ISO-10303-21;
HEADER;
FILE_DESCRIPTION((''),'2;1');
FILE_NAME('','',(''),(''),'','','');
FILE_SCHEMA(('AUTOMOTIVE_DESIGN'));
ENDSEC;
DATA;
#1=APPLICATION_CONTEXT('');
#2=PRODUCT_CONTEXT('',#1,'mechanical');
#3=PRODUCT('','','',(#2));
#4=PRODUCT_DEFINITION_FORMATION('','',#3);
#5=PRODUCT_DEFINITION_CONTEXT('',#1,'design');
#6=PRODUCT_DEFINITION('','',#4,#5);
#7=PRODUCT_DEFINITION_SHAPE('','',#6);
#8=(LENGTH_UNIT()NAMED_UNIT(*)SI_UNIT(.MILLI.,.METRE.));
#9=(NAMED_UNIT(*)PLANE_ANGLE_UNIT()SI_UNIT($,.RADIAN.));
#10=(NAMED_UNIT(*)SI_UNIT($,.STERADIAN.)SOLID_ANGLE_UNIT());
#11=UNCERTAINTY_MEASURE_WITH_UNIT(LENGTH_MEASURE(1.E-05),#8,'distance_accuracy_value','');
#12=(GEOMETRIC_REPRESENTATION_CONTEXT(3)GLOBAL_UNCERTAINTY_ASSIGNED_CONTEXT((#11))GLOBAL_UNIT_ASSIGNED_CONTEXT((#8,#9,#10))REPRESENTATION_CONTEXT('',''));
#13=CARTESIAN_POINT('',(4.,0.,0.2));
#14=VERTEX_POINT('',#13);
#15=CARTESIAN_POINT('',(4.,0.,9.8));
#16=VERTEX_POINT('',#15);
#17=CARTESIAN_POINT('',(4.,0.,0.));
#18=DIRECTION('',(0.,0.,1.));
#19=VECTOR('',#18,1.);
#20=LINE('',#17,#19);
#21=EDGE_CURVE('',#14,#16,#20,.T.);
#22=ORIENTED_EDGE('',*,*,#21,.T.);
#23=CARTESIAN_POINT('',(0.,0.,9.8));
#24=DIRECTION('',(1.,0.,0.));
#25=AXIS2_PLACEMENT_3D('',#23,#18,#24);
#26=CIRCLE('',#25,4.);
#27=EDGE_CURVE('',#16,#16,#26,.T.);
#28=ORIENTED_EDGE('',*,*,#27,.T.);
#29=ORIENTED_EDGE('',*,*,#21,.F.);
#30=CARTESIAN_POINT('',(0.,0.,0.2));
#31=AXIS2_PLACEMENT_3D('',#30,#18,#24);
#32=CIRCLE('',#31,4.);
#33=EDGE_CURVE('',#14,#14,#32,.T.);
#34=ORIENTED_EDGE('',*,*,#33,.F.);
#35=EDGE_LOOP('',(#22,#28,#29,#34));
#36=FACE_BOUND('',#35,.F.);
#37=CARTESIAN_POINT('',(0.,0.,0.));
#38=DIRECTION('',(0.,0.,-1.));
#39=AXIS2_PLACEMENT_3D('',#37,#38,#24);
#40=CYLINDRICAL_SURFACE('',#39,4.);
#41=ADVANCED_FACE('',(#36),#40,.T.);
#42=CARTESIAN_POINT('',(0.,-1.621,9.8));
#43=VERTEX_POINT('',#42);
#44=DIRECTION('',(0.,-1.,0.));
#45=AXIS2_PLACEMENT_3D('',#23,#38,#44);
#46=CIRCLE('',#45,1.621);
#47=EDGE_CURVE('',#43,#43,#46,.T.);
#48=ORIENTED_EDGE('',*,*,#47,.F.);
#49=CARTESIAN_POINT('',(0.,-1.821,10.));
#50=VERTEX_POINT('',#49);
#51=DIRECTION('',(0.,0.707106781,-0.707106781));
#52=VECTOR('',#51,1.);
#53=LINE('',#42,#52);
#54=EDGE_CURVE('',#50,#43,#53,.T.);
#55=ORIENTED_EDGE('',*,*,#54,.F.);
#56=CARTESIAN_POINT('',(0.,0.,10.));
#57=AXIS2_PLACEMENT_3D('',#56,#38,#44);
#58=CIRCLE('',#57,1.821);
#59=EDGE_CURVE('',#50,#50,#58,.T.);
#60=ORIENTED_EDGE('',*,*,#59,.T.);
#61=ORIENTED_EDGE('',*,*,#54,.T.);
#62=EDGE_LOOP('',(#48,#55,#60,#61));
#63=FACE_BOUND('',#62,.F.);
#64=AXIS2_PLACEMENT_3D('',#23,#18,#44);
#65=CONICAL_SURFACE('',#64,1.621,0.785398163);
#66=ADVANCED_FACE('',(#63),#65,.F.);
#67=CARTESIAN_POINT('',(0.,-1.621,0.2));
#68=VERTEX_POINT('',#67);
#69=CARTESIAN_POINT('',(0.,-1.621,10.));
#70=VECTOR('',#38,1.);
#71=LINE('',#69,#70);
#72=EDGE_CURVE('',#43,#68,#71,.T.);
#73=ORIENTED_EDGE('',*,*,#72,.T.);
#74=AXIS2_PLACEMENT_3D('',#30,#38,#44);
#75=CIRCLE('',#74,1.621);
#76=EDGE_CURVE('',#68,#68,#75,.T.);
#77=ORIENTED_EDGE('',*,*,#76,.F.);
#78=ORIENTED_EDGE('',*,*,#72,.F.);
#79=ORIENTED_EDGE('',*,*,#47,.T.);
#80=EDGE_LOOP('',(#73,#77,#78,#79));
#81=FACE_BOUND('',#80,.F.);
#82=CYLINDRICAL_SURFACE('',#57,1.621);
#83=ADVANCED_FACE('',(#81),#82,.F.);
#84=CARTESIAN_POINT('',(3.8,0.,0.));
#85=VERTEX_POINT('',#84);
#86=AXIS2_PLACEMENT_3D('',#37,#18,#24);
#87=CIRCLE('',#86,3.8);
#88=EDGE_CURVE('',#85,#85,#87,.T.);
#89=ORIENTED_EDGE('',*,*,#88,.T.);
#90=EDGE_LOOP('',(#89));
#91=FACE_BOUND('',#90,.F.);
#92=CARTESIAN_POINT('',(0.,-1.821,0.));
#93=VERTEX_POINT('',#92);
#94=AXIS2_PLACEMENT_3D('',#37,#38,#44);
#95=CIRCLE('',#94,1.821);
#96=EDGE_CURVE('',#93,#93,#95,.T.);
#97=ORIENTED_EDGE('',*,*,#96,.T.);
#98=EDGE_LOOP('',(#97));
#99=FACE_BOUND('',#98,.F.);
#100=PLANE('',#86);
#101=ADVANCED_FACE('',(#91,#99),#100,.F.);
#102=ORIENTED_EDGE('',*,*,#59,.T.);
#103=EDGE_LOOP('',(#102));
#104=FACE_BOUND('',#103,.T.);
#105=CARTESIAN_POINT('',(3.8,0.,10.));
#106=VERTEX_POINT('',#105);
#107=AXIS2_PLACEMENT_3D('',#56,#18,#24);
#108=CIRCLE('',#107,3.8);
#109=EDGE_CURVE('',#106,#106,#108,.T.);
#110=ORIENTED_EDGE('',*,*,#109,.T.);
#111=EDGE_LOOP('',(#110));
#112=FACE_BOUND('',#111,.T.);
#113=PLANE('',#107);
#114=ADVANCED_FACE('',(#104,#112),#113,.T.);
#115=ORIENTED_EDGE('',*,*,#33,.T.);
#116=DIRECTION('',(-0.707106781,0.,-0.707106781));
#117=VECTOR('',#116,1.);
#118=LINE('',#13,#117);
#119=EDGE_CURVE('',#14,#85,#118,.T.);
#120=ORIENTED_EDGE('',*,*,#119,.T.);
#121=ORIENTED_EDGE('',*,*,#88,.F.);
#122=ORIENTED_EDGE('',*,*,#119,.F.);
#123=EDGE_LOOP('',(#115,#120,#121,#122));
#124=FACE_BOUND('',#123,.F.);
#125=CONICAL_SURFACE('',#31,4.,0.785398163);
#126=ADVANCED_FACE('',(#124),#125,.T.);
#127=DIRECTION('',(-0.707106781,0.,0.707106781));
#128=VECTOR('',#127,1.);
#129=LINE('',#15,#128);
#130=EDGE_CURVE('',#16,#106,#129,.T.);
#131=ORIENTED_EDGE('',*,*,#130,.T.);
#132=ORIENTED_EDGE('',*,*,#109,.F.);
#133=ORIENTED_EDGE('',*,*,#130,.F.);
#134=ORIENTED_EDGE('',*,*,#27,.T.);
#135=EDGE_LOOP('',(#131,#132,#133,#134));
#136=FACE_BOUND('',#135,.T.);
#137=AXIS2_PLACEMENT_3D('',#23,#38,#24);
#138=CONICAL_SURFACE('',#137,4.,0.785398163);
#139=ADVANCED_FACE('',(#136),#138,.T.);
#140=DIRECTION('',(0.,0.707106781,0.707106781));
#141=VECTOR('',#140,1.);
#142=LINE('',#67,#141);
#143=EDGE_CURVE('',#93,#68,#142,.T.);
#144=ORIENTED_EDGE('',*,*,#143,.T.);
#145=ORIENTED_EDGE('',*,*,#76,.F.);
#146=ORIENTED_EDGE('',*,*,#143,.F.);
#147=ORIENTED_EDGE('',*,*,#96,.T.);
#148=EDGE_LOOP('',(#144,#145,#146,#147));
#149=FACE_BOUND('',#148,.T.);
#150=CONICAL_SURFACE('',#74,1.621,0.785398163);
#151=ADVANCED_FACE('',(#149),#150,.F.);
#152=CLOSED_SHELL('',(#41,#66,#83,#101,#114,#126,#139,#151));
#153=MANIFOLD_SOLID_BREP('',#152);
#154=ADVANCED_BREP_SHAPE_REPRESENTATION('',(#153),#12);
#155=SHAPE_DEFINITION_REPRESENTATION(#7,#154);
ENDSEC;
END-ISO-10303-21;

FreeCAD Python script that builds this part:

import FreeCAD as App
import Part
import Sketcher
from FreeCAD import Vector
Q = App.Units.Quantity


def edges_at(feature, points):
    """Names of the edges that pass closest to the given points."""
    edges = feature.Shape.Edges
    near = lambda p: min(range(len(edges)), key=lambda i: edges[i].distToShape(Part.Vertex(*p))[0])
    return sorted({f"Edge{near(p) + 1}" for p in points})

doc = App.newDocument("Part")
body = doc.addObject("PartDesign::Body", "Body")

# Sketch on XY plane
sketch1 = doc.addObject("Sketcher::SketchObject", "Sketch")
body.addObject(sketch1)
sketch1.AttachmentSupport = (doc.XY_Plane, [""])
sketch1.MapMode = "FlatFace"
sketch1.addGeometry(Part.Circle(Vector(0, 0, 0), Vector(0, 0, 1), 4), False)
sketch1.addConstraint([
    Sketcher.Constraint("Coincident", 0, 3, -1, 1),
    Sketcher.Constraint("Diameter", 0, Q("8 mm")),
])
pad1 = doc.addObject("PartDesign::Pad", "Pad")
body.addObject(pad1)
pad1.Profile = sketch1
pad1.Length = 10

# Sketch on XY plane
sketch2 = doc.addObject("Sketcher::SketchObject", "Sketch001")
body.addObject(sketch2)
sketch2.AttachmentSupport = (doc.XY_Plane, [""])
sketch2.MapMode = "FlatFace"
sketch2.AttachmentOffset = App.Placement(Vector(0, 0, 10), App.Rotation())
sketch2.addGeometry(Part.Circle(Vector(0, 0, 0), Vector(0, 0, 1), 1.621), False)
sketch2.addConstraint([
    Sketcher.Constraint("Coincident", 0, 3, -1, 1),
    Sketcher.Constraint("Diameter", 0, Q("3.242 mm")),
])
doc.recompute()
hole = doc.addObject("PartDesign::Hole", "Hole")
body.addObject(hole)
hole.Profile = sketch2
hole.ThreadType = "None"
hole.Diameter = 3.242
hole.DepthType = "ThroughAll"
doc.recompute()

chamfer = doc.addObject("PartDesign::Chamfer", "Chamfer")
body.addObject(chamfer)
chamfer.Base = (hole, edges_at(hole, [
    (0, 1.621, 10),
    (0, 1.621, 0),
    (-4, 0, 10),
    (-4, 0, 0),
]))
chamfer.Size = 0.2

doc.recompute()
